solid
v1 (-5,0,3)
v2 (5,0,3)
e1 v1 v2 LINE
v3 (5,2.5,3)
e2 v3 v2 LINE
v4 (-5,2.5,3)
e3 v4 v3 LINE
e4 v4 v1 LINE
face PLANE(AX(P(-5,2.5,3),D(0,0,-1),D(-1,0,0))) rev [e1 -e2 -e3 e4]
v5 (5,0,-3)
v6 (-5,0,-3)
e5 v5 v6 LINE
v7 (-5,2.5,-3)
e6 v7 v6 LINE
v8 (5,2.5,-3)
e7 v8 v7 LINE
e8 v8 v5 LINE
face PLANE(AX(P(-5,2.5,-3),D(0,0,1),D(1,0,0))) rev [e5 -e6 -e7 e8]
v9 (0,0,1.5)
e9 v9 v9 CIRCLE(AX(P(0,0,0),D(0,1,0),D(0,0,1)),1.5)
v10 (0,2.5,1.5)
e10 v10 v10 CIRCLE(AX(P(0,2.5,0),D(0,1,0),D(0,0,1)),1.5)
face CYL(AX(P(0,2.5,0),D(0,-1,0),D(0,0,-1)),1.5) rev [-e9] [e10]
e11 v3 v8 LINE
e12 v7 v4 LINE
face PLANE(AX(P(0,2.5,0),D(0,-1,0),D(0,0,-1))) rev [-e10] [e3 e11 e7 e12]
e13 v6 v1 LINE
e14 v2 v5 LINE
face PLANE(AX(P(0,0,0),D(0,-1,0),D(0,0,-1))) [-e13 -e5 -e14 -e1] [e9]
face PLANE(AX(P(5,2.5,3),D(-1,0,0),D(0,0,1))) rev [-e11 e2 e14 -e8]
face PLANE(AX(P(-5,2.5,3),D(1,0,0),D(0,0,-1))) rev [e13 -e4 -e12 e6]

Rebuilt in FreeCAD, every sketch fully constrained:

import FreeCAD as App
import Part
import Sketcher

doc = App.newDocument("Part")
body = doc.addObject("PartDesign::Body", "Body")

# Sketch on XZ plane
sketch1 = body.newObject("Sketcher::SketchObject", "Sketch")
sketch1.AttachmentSupport = (doc.getObject("XZ_Plane"), [""])
sketch1.MapMode = "FlatFace"
sketch1.addGeometry(Part.LineSegment(App.Vector(-5, -3, 0), App.Vector(-5, 3, 0)), False)
sketch1.addGeometry(Part.LineSegment(App.Vector(-5, 3, 0), App.Vector(5, 3, 0)), False)
sketch1.addGeometry(Part.LineSegment(App.Vector(5, 3, 0), App.Vector(5, -3, 0)), False)
sketch1.addGeometry(Part.LineSegment(App.Vector(5, -3, 0), App.Vector(-5, -3, 0)), False)
sketch1.addGeometry(Part.Circle(App.Vector(0, 0, 0), App.Vector(0, 0, 1), 1.5), False)
sketch1.addConstraint(Sketcher.Constraint("Coincident", 0, 2, 1, 1))
sketch1.addConstraint(Sketcher.Constraint("Coincident", 1, 2, 2, 1))
sketch1.addConstraint(Sketcher.Constraint("Coincident", 2, 2, 3, 1))
sketch1.addConstraint(Sketcher.Constraint("Coincident", 3, 2, 0, 1))
sketch1.addConstraint(Sketcher.Constraint("Vertical", 0))
sketch1.addConstraint(Sketcher.Constraint("Horizontal", 1))
sketch1.addConstraint(Sketcher.Constraint("Vertical", 2))
sketch1.addConstraint(Sketcher.Constraint("Horizontal", 3))
sketch1.addConstraint(Sketcher.Constraint("Coincident", 4, 3, -1, 1))
sketch1.addConstraint(Sketcher.Constraint("Symmetric", 0, 2, 2, 2, -1, 1))
sketch1.addConstraint(Sketcher.Constraint("Diameter", 4, 3.0))
sketch1.addConstraint(Sketcher.Constraint("DistanceX", 1, 1, 1, 2, 10.0))
sketch1.addConstraint(Sketcher.Constraint("DistanceY", 0, 1, 0, 2, 6.0))
pad1 = body.newObject("PartDesign::Pad", "Pad")
pad1.Profile = sketch1
pad1.Length = 2.5
pad1.Reversed = True

doc.recompute()
